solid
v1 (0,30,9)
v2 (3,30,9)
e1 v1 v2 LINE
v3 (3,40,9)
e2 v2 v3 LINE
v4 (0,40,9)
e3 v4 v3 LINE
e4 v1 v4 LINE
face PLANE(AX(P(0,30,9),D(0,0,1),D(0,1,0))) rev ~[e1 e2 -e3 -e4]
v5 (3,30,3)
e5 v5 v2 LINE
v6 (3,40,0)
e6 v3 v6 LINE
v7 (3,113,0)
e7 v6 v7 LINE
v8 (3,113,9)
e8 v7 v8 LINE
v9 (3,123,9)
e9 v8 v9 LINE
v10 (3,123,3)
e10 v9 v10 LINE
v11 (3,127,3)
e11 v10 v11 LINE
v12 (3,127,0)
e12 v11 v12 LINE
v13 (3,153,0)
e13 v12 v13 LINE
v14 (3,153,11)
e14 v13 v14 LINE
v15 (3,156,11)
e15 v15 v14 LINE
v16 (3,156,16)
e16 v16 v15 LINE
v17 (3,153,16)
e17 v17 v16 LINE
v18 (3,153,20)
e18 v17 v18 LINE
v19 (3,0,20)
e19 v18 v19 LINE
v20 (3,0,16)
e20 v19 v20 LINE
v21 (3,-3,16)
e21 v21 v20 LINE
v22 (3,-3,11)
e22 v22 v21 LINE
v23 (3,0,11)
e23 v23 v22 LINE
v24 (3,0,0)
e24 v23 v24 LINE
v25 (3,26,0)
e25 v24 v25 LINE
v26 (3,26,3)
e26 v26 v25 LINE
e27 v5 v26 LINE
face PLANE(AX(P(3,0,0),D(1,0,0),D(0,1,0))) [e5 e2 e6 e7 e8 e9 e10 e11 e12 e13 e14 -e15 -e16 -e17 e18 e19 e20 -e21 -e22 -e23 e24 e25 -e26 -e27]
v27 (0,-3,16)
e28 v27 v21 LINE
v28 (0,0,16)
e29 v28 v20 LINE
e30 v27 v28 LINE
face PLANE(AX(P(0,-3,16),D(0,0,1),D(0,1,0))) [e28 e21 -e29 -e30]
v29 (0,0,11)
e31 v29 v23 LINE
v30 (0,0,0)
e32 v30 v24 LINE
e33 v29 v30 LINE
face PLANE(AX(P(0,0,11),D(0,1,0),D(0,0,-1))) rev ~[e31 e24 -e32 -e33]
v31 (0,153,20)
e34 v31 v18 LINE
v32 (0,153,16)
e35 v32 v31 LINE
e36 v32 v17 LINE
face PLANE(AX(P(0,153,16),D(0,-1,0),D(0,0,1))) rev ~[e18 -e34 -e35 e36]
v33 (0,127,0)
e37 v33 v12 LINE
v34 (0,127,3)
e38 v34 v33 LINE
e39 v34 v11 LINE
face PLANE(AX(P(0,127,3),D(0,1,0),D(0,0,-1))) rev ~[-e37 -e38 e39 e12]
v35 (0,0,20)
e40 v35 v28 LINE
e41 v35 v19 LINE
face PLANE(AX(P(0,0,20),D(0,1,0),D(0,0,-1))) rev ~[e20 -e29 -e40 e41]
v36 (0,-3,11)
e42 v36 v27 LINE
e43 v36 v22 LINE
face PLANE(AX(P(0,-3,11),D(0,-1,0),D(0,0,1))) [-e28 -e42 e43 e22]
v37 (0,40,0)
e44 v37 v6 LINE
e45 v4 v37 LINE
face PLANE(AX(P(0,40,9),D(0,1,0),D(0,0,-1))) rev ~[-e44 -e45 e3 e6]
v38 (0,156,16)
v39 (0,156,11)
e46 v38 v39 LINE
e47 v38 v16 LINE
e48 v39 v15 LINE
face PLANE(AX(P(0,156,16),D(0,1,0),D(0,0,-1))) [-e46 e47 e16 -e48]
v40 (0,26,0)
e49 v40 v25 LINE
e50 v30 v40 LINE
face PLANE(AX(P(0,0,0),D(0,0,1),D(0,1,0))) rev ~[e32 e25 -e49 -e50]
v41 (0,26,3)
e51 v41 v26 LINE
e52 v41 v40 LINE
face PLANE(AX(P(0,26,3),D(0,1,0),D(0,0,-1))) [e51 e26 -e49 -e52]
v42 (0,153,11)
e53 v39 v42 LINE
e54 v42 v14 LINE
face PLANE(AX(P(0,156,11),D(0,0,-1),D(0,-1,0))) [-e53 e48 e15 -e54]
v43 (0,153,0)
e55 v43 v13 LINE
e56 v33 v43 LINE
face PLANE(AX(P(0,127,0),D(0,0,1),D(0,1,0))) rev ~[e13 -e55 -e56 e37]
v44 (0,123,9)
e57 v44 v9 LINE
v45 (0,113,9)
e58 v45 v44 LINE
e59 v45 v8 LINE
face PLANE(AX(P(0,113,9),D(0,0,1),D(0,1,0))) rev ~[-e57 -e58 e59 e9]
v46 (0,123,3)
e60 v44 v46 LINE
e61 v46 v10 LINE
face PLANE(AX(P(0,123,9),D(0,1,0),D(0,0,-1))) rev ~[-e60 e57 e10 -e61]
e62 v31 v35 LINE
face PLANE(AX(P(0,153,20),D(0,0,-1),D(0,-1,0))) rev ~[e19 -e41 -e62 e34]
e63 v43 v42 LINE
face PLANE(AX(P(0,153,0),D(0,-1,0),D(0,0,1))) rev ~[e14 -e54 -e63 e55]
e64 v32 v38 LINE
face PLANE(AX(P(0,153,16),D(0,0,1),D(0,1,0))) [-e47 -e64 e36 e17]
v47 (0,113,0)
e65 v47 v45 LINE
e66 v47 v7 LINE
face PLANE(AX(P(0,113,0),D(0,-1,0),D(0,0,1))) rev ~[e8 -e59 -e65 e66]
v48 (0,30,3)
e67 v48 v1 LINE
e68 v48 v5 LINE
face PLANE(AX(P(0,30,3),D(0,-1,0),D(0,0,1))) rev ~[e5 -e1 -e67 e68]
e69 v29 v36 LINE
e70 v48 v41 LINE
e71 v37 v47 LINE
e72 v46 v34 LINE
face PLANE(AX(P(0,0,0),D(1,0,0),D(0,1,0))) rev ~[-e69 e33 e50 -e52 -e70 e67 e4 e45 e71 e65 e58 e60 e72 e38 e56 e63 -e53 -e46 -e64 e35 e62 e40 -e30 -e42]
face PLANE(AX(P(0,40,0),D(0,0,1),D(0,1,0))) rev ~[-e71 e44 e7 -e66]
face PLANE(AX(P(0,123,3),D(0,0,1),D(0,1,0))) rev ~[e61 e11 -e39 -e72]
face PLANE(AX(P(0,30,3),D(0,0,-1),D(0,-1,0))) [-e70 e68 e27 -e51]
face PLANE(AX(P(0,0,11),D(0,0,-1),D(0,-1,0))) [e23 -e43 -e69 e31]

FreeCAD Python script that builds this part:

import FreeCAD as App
import Part
import Sketcher
from FreeCAD import Vector

doc = App.newDocument("Part")
body = doc.addObject("PartDesign::Body", "Body")

sketch1 = body.newObject("Sketcher::SketchObject", "Sketch")
sketch1.AttachmentSupport = (doc.getObject("YZ_Plane"), [""])
sketch1.MapMode = "FlatFace"
sketch1.addGeometry([
    Part.LineSegment(Vector(-3, 11, 0), Vector(0, 11, 0)),
    Part.LineSegment(Vector(0, 11, 0), Vector(0, 0, 0)),
    Part.LineSegment(Vector(0, 0, 0), Vector(26, 0, 0)),
    Part.LineSegment(Vector(26, 0, 0), Vector(26, 3, 0)),
    Part.LineSegment(Vector(26, 3, 0), Vector(30, 3, 0)),
    Part.LineSegment(Vector(30, 3, 0), Vector(30, 9, 0)),
    Part.LineSegment(Vector(30, 9, 0), Vector(40, 9, 0)),
    Part.LineSegment(Vector(40, 9, 0), Vector(40, 0, 0)),
    Part.LineSegment(Vector(40, 0, 0), Vector(113, 0, 0)),
    Part.LineSegment(Vector(113, 0, 0), Vector(113, 9, 0)),
    Part.LineSegment(Vector(113, 9, 0), Vector(123, 9, 0)),
    Part.LineSegment(Vector(123, 9, 0), Vector(123, 3, 0)),
    Part.LineSegment(Vector(123, 3, 0), Vector(127, 3, 0)),
    Part.LineSegment(Vector(127, 3, 0), Vector(127, 0, 0)),
    Part.LineSegment(Vector(127, 0, 0), Vector(153, 0, 0)),
    Part.LineSegment(Vector(153, 0, 0), Vector(153, 11, 0)),
    Part.LineSegment(Vector(153, 11, 0), Vector(156, 11, 0)),
    Part.LineSegment(Vector(156, 11, 0), Vector(156, 16, 0)),
    Part.LineSegment(Vector(156, 16, 0), Vector(153, 16, 0)),
    Part.LineSegment(Vector(153, 16, 0), Vector(153, 20, 0)),
    Part.LineSegment(Vector(153, 20, 0), Vector(0, 20, 0)),
    Part.LineSegment(Vector(0, 20, 0), Vector(0, 16, 0)),
    Part.LineSegment(Vector(0, 16, 0), Vector(-3, 16, 0)),
    Part.LineSegment(Vector(-3, 16, 0), Vector(-3, 11, 0)),
], False)
sketch1.addConstraint([
    Sketcher.Constraint("Coincident", 0, 2, 1, 1),
    Sketcher.Constraint("Coincident", 1, 2, 2, 1),
    Sketcher.Constraint("Coincident", 2, 2, 3, 1),
    Sketcher.Constraint("Coincident", 3, 2, 4, 1),
    Sketcher.Constraint("Coincident", 4, 2, 5, 1),
    Sketcher.Constraint("Coincident", 5, 2, 6, 1),
    Sketcher.Constraint("Coincident", 6, 2, 7, 1),
    Sketcher.Constraint("Coincident", 7, 2, 8, 1),
    Sketcher.Constraint("Coincident", 8, 2, 9, 1),
    Sketcher.Constraint("Coincident", 9, 2, 10, 1),
    Sketcher.Constraint("Coincident", 10, 2, 11, 1),
    Sketcher.Constraint("Coincident", 11, 2, 12, 1),
    Sketcher.Constraint("Coincident", 12, 2, 13, 1),
    Sketcher.Constraint("Coincident", 13, 2, 14, 1),
    Sketcher.Constraint("Coincident", 14, 2, 15, 1),
    Sketcher.Constraint("Coincident", 15, 2, 16, 1),
    Sketcher.Constraint("Coincident", 16, 2, 17, 1),
    Sketcher.Constraint("Coincident", 17, 2, 18, 1),
    Sketcher.Constraint("Coincident", 18, 2, 19, 1),
    Sketcher.Constraint("Coincident", 19, 2, 20, 1),
    Sketcher.Constraint("Coincident", 20, 2, 21, 1),
    Sketcher.Constraint("Coincident", 21, 2, 22, 1),
    Sketcher.Constraint("Coincident", 22, 2, 23, 1),
    Sketcher.Constraint("Coincident", 23, 2, 0, 1),
    Sketcher.Constraint("Horizontal", 0),
    Sketcher.Constraint("Vertical", 1),
    Sketcher.Constraint("Horizontal", 2),
    Sketcher.Constraint("Vertical", 3),
    Sketcher.Constraint("Horizontal", 4),
    Sketcher.Constraint("Vertical", 5),
    Sketcher.Constraint("Horizontal", 6),
    Sketcher.Constraint("Vertical", 7),
    Sketcher.Constraint("Horizontal", 8),
    Sketcher.Constraint("Vertical", 9),
    Sketcher.Constraint("Horizontal", 10),
    Sketcher.Constraint("Vertical", 11),
    Sketcher.Constraint("Horizontal", 12),
    Sketcher.Constraint("Vertical", 13),
    Sketcher.Constraint("Horizontal", 14),
    Sketcher.Constraint("Vertical", 15),
    Sketcher.Constraint("Horizontal", 16),
    Sketcher.Constraint("Vertical", 17),
    Sketcher.Constraint("Horizontal", 18),
    Sketcher.Constraint("Vertical", 19),
    Sketcher.Constraint("Horizontal", 20),
    Sketcher.Constraint("Vertical", 21),
    Sketcher.Constraint("Horizontal", 22),
    Sketcher.Constraint("Vertical", 23),
    Sketcher.Constraint("Coincident", 1, 2, -1, 1),
    Sketcher.Constraint("PointOnObject", 7, 2, -1),
    Sketcher.Constraint("PointOnObject", 13, 2, -1),
    Sketcher.Constraint("PointOnObject", 20, 2, -2),
    Sketcher.Constraint("Horizontal", 6, 2, 9, 2),
    Sketcher.Constraint("Horizontal", 4, 2, 11, 2),
    Sketcher.Constraint("Horizontal", 0, 2, 15, 2),
    Sketcher.Constraint("Horizontal", 18, 2, 21, 2),
    Sketcher.Constraint("Vertical", 15, 2, 18, 2),
    Sketcher.Constraint("Equal", 6, 10),
    Sketcher.Constraint("Equal", 4, 12),
    Sketcher.Constraint("Equal", 2, 14),
    Sketcher.Constraint("Equal", 0, 16),
    Sketcher.Constraint("Equal", 22, 3),
    Sketcher.Constraint("Equal", 12, 19),
    Sketcher.Constraint("DistanceX", 0, 1, 0, 2, 3.0),
    Sketcher.Constraint("DistanceX", 2, 1, 2, 2, 26.0),
    Sketcher.Constraint("DistanceX", 4, 1, 4, 2, 4.0),
    Sketcher.Constraint("DistanceX", 6, 1, 6, 2, 10.0),
    Sketcher.Constraint("DistanceX", 20, 2, 20, 1, 153.0),
    Sketcher.Constraint("DistanceY", 1, 2, 1, 1, 11.0),
    Sketcher.Constraint("DistanceY", 7, 2, 7, 1, 9.0),
    Sketcher.Constraint("DistanceY", 17, 1, 17, 2, 5.0),
])
pad1 = body.newObject("PartDesign::Pad", "Pad")
pad1.Profile = sketch1
pad1.Length = 3

doc.recompute()
